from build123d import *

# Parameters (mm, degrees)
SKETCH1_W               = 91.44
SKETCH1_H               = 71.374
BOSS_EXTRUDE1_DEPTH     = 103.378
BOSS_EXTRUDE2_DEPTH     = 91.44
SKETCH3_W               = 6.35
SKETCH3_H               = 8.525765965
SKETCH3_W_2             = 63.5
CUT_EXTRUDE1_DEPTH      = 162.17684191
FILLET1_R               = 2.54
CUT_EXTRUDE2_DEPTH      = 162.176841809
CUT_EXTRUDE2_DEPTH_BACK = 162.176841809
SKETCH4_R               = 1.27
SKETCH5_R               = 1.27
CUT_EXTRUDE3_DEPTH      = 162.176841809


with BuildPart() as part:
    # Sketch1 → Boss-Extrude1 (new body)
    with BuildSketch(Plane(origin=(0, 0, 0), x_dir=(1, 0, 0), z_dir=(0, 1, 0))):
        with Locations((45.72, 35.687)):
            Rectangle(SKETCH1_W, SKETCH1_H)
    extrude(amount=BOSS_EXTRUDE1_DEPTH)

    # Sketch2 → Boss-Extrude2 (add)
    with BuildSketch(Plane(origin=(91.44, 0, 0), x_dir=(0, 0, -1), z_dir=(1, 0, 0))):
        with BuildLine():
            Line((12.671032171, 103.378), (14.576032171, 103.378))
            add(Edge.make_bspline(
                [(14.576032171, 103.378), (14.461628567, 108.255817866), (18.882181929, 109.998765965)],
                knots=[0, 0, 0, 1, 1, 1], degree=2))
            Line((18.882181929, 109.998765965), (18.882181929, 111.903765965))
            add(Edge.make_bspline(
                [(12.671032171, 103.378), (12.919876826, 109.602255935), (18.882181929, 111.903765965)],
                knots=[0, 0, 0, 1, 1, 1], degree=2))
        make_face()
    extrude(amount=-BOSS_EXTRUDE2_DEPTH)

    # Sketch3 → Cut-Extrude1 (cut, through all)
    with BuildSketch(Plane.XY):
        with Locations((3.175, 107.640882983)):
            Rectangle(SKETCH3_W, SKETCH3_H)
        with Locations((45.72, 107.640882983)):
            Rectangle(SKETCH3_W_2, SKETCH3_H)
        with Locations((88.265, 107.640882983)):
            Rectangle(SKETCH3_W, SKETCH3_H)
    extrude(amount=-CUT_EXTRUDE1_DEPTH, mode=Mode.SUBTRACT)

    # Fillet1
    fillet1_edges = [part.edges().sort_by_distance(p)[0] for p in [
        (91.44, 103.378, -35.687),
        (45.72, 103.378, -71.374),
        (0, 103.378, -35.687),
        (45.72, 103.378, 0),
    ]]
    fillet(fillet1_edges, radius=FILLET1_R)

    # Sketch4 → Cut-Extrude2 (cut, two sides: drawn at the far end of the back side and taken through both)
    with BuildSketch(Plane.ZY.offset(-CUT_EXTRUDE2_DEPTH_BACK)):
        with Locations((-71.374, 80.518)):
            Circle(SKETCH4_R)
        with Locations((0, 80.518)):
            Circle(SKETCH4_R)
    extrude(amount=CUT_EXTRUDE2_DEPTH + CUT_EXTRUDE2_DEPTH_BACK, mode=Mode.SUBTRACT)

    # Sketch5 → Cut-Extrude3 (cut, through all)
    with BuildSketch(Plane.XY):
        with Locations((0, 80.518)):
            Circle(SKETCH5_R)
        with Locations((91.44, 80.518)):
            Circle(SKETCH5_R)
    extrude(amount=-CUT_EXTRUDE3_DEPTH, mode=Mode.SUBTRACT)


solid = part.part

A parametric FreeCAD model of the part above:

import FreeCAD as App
import Part
import Sketcher
from FreeCAD import Vector
Q = App.Units.Quantity


def edges_at(feature, points):
    """Names of the edges that pass closest to the given points."""
    edges = feature.Shape.Edges
    near = lambda p: min(range(len(edges)), key=lambda i: edges[i].distToShape(Part.Vertex(*p))[0])
    return sorted({f"Edge{near(p) + 1}" for p in points})


def add_polygon(sketch, points):
    """Adds a closed chain of lines whose ends are joined by coincident constraints."""
    first, n = sketch.GeometryCount, len(points)
    for a, b in zip(points, points[1:] + points[:1]):
        sketch.addGeometry(Part.LineSegment(App.Vector(*a, 0), App.Vector(*b, 0)), False)
    for i in range(n):
        sketch.addConstraint(Sketcher.Constraint("Coincident", first + i, 2, first + (i + 1) % n, 1))

doc = App.newDocument("Part")
body = doc.addObject("PartDesign::Body", "Body")

sketch1 = body.newObject("Sketcher::SketchObject", "Sketch")
sketch1.AttachmentSupport = (doc.getObject("XZ_Plane"), [""])
sketch1.MapMode = "FlatFace"
add_polygon(sketch1, [(0, -71), (0, 0), (91, 0), (91, -71)])
sketch1.addConstraint([
    Sketcher.Constraint("Vertical", 0),
    Sketcher.Constraint("Horizontal", 1),
    Sketcher.Constraint("Vertical", 2),
    Sketcher.Constraint("Horizontal", 3),
    Sketcher.Constraint("Coincident", 0, 2, -1, 1),
    Sketcher.Constraint("DistanceX", 1, 1, 1, 2, Q("3.6 in")),
    Sketcher.Constraint("DistanceY", 0, 1, 0, 2, Q("2.81 in")),
])
pad1 = body.newObject("PartDesign::Pad", "Pad")
pad1.Profile = sketch1
pad1.Length = Q("4.07 in")
pad1.Reversed = True

sketch2 = body.newObject("Sketcher::SketchObject", "Sketch001")
sketch2.AttachmentSupport = (doc.getObject("YZ_Plane"), [""])
sketch2.MapMode = "FlatFace"
sketch2.AttachmentOffset = App.Placement(Vector(0, 0, 3.6 * 25.4), App.Rotation())
sketch2.addGeometry([
    Part.LineSegment(Vector(103.378, -12.671032, 0), Vector(103.378, -14.576032, 0)),
    Part.BSplineCurve([Vector(103.378, -14.576032, 0), Vector(108.255818, -14.461629, 0), Vector(109.998766, -18.882182, 0)], [3, 3], [0, 1], False, 2, [1, 1, 1], False),
    Part.LineSegment(Vector(109.998766, -18.882182, 0), Vector(111.903766, -18.882182, 0)),
    Part.BSplineCurve([Vector(103.378, -12.671032, 0), Vector(109.602256, -12.919877, 0), Vector(111.903766, -18.882182, 0)], [3, 3], [0, 1], False, 2, [1, 1, 1], False),
], False)
sketch2.addConstraint([
    Sketcher.Constraint("Block", 1),
    Sketcher.Constraint("Block", 3),
    Sketcher.Constraint("Coincident", 0, 2, 1, 1),
    Sketcher.Constraint("Coincident", 1, 2, 2, 1),
    Sketcher.Constraint("Coincident", 2, 2, 3, 2),
    Sketcher.Constraint("Coincident", 3, 1, 0, 1),
])
pad2 = body.newObject("PartDesign::Pad", "Pad001")
pad2.Profile = sketch2
pad2.Length = Q("3.6 in")
pad2.Reversed = True

sketch3 = body.newObject("Sketcher::SketchObject", "Sketch002")
sketch3.AttachmentSupport = (doc.getObject("XY_Plane"), [""])
sketch3.MapMode = "FlatFace"
add_polygon(sketch3, [(0, 112), (0, 103), (6, 103), (6, 112)])
add_polygon(sketch3, [(14, 112), (14, 103), (77, 103), (77, 112)])
add_polygon(sketch3, [(85, 112), (85, 103), (91, 103), (91, 112)])
sketch3.addConstraint([
    Sketcher.Constraint("Vertical", 0),
    Sketcher.Constraint("Horizontal", 1),
    Sketcher.Constraint("Vertical", 2),
    Sketcher.Constraint("Horizontal", 3),
    Sketcher.Constraint("Vertical", 4),
    Sketcher.Constraint("Horizontal", 5),
    Sketcher.Constraint("Vertical", 6),
    Sketcher.Constraint("Horizontal", 7),
    Sketcher.Constraint("Vertical", 8),
    Sketcher.Constraint("Horizontal", 9),
    Sketcher.Constraint("Vertical", 10),
    Sketcher.Constraint("Horizontal", 11),
    Sketcher.Constraint("PointOnObject", 0, 2, -2),
    Sketcher.Constraint("Horizontal", 1, 2, 4, 2),
    Sketcher.Constraint("Horizontal", 3, 2, 6, 2),
    Sketcher.Constraint("Horizontal", 5, 2, 8, 2),
    Sketcher.Constraint("Horizontal", 7, 2, 10, 2),
    Sketcher.Constraint("Equal", 3, 9),
    Sketcher.Constraint("DistanceX", 5, 1, 5, 2, Q("2.5 in")),
    Sketcher.Constraint("DistanceX", 1, 1, 1, 2, Q("0.25 in")),
    Sketcher.Constraint("DistanceX", -1, 1, 9, 2, Q("3.6 in")),
    Sketcher.Constraint("DistanceX", 1, 2, 4, 2, Q("0.3 in")),
    Sketcher.Constraint("DistanceY", -1, 1, 0, 2, Q("4.07 in")),
    Sketcher.Constraint("DistanceY", 0, 2, 0, 1, 8.525766),
])
pocket1 = body.newObject("PartDesign::Pocket", "Pocket")
pocket1.Profile = sketch3
pocket1.Type = "ThroughAll"
doc.recompute()

fillet = body.newObject("PartDesign::Fillet", "Fillet")
fillet.Base = (pocket1, edges_at(pocket1, [
    (91.44, 103.378, -42.975),
    (45.72, 103.378, -71.374),
    (0, 103.378, -42.975),
    (45.72, 103.378, 0),
]))
fillet.Radius = Q("0.1 in")

sketch4 = body.newObject("Sketcher::SketchObject", "Sketch003")
sketch4.AttachmentSupport = (doc.getObject("YZ_Plane"), [""])
sketch4.MapMode = "FlatFace"
sketch4.addGeometry([
    Part.Circle(Vector(80.5, -71.4, 0), Vector(0, 0, 1), 1.3),
    Part.Circle(Vector(80.5, 0, 0), Vector(0, 0, 1), 1.3),
], False)
sketch4.addConstraint([
    Sketcher.Constraint("Equal", 0, 1),
    Sketcher.Constraint("PointOnObject", 1, 3, -1),
    Sketcher.Constraint("Vertical", 0, 3, 1, 3),
    Sketcher.Constraint("Diameter", 0, Q("0.1 in")),
    Sketcher.Constraint("DistanceX", -1, 1, 0, 3, Q("3.17 in")),
    Sketcher.Constraint("DistanceY", 0, 3, -1, 1, Q("2.81 in")),
])
pocket2 = body.newObject("PartDesign::Pocket", "Pocket001")
pocket2.Profile = sketch4
pocket2.Type = "ThroughAll"
pocket2.Midplane = True

sketch5 = body.newObject("Sketcher::SketchObject", "Sketch004")
sketch5.AttachmentSupport = (doc.getObject("XY_Plane"), [""])
sketch5.MapMode = "FlatFace"
sketch5.addGeometry([
    Part.Circle(Vector(0, 80.5, 0), Vector(0, 0, 1), 1.3),
    Part.Circle(Vector(91.4, 80.5, 0), Vector(0, 0, 1), 1.3),
], False)
sketch5.addConstraint([
    Sketcher.Constraint("Equal", 0, 1),
    Sketcher.Constraint("PointOnObject", 0, 3, -2),
    Sketcher.Constraint("Horizontal", 0, 3, 1, 3),
    Sketcher.Constraint("Diameter", 0, Q("0.1 in")),
    Sketcher.Constraint("DistanceX", -1, 1, 1, 3, Q("3.6 in")),
    Sketcher.Constraint("DistanceY", -1, 1, 0, 3, Q("3.17 in")),
])
pocket3 = body.newObject("PartDesign::Pocket", "Pocket002")
pocket3.Profile = sketch5
pocket3.Type = "ThroughAll"

doc.recompute()
